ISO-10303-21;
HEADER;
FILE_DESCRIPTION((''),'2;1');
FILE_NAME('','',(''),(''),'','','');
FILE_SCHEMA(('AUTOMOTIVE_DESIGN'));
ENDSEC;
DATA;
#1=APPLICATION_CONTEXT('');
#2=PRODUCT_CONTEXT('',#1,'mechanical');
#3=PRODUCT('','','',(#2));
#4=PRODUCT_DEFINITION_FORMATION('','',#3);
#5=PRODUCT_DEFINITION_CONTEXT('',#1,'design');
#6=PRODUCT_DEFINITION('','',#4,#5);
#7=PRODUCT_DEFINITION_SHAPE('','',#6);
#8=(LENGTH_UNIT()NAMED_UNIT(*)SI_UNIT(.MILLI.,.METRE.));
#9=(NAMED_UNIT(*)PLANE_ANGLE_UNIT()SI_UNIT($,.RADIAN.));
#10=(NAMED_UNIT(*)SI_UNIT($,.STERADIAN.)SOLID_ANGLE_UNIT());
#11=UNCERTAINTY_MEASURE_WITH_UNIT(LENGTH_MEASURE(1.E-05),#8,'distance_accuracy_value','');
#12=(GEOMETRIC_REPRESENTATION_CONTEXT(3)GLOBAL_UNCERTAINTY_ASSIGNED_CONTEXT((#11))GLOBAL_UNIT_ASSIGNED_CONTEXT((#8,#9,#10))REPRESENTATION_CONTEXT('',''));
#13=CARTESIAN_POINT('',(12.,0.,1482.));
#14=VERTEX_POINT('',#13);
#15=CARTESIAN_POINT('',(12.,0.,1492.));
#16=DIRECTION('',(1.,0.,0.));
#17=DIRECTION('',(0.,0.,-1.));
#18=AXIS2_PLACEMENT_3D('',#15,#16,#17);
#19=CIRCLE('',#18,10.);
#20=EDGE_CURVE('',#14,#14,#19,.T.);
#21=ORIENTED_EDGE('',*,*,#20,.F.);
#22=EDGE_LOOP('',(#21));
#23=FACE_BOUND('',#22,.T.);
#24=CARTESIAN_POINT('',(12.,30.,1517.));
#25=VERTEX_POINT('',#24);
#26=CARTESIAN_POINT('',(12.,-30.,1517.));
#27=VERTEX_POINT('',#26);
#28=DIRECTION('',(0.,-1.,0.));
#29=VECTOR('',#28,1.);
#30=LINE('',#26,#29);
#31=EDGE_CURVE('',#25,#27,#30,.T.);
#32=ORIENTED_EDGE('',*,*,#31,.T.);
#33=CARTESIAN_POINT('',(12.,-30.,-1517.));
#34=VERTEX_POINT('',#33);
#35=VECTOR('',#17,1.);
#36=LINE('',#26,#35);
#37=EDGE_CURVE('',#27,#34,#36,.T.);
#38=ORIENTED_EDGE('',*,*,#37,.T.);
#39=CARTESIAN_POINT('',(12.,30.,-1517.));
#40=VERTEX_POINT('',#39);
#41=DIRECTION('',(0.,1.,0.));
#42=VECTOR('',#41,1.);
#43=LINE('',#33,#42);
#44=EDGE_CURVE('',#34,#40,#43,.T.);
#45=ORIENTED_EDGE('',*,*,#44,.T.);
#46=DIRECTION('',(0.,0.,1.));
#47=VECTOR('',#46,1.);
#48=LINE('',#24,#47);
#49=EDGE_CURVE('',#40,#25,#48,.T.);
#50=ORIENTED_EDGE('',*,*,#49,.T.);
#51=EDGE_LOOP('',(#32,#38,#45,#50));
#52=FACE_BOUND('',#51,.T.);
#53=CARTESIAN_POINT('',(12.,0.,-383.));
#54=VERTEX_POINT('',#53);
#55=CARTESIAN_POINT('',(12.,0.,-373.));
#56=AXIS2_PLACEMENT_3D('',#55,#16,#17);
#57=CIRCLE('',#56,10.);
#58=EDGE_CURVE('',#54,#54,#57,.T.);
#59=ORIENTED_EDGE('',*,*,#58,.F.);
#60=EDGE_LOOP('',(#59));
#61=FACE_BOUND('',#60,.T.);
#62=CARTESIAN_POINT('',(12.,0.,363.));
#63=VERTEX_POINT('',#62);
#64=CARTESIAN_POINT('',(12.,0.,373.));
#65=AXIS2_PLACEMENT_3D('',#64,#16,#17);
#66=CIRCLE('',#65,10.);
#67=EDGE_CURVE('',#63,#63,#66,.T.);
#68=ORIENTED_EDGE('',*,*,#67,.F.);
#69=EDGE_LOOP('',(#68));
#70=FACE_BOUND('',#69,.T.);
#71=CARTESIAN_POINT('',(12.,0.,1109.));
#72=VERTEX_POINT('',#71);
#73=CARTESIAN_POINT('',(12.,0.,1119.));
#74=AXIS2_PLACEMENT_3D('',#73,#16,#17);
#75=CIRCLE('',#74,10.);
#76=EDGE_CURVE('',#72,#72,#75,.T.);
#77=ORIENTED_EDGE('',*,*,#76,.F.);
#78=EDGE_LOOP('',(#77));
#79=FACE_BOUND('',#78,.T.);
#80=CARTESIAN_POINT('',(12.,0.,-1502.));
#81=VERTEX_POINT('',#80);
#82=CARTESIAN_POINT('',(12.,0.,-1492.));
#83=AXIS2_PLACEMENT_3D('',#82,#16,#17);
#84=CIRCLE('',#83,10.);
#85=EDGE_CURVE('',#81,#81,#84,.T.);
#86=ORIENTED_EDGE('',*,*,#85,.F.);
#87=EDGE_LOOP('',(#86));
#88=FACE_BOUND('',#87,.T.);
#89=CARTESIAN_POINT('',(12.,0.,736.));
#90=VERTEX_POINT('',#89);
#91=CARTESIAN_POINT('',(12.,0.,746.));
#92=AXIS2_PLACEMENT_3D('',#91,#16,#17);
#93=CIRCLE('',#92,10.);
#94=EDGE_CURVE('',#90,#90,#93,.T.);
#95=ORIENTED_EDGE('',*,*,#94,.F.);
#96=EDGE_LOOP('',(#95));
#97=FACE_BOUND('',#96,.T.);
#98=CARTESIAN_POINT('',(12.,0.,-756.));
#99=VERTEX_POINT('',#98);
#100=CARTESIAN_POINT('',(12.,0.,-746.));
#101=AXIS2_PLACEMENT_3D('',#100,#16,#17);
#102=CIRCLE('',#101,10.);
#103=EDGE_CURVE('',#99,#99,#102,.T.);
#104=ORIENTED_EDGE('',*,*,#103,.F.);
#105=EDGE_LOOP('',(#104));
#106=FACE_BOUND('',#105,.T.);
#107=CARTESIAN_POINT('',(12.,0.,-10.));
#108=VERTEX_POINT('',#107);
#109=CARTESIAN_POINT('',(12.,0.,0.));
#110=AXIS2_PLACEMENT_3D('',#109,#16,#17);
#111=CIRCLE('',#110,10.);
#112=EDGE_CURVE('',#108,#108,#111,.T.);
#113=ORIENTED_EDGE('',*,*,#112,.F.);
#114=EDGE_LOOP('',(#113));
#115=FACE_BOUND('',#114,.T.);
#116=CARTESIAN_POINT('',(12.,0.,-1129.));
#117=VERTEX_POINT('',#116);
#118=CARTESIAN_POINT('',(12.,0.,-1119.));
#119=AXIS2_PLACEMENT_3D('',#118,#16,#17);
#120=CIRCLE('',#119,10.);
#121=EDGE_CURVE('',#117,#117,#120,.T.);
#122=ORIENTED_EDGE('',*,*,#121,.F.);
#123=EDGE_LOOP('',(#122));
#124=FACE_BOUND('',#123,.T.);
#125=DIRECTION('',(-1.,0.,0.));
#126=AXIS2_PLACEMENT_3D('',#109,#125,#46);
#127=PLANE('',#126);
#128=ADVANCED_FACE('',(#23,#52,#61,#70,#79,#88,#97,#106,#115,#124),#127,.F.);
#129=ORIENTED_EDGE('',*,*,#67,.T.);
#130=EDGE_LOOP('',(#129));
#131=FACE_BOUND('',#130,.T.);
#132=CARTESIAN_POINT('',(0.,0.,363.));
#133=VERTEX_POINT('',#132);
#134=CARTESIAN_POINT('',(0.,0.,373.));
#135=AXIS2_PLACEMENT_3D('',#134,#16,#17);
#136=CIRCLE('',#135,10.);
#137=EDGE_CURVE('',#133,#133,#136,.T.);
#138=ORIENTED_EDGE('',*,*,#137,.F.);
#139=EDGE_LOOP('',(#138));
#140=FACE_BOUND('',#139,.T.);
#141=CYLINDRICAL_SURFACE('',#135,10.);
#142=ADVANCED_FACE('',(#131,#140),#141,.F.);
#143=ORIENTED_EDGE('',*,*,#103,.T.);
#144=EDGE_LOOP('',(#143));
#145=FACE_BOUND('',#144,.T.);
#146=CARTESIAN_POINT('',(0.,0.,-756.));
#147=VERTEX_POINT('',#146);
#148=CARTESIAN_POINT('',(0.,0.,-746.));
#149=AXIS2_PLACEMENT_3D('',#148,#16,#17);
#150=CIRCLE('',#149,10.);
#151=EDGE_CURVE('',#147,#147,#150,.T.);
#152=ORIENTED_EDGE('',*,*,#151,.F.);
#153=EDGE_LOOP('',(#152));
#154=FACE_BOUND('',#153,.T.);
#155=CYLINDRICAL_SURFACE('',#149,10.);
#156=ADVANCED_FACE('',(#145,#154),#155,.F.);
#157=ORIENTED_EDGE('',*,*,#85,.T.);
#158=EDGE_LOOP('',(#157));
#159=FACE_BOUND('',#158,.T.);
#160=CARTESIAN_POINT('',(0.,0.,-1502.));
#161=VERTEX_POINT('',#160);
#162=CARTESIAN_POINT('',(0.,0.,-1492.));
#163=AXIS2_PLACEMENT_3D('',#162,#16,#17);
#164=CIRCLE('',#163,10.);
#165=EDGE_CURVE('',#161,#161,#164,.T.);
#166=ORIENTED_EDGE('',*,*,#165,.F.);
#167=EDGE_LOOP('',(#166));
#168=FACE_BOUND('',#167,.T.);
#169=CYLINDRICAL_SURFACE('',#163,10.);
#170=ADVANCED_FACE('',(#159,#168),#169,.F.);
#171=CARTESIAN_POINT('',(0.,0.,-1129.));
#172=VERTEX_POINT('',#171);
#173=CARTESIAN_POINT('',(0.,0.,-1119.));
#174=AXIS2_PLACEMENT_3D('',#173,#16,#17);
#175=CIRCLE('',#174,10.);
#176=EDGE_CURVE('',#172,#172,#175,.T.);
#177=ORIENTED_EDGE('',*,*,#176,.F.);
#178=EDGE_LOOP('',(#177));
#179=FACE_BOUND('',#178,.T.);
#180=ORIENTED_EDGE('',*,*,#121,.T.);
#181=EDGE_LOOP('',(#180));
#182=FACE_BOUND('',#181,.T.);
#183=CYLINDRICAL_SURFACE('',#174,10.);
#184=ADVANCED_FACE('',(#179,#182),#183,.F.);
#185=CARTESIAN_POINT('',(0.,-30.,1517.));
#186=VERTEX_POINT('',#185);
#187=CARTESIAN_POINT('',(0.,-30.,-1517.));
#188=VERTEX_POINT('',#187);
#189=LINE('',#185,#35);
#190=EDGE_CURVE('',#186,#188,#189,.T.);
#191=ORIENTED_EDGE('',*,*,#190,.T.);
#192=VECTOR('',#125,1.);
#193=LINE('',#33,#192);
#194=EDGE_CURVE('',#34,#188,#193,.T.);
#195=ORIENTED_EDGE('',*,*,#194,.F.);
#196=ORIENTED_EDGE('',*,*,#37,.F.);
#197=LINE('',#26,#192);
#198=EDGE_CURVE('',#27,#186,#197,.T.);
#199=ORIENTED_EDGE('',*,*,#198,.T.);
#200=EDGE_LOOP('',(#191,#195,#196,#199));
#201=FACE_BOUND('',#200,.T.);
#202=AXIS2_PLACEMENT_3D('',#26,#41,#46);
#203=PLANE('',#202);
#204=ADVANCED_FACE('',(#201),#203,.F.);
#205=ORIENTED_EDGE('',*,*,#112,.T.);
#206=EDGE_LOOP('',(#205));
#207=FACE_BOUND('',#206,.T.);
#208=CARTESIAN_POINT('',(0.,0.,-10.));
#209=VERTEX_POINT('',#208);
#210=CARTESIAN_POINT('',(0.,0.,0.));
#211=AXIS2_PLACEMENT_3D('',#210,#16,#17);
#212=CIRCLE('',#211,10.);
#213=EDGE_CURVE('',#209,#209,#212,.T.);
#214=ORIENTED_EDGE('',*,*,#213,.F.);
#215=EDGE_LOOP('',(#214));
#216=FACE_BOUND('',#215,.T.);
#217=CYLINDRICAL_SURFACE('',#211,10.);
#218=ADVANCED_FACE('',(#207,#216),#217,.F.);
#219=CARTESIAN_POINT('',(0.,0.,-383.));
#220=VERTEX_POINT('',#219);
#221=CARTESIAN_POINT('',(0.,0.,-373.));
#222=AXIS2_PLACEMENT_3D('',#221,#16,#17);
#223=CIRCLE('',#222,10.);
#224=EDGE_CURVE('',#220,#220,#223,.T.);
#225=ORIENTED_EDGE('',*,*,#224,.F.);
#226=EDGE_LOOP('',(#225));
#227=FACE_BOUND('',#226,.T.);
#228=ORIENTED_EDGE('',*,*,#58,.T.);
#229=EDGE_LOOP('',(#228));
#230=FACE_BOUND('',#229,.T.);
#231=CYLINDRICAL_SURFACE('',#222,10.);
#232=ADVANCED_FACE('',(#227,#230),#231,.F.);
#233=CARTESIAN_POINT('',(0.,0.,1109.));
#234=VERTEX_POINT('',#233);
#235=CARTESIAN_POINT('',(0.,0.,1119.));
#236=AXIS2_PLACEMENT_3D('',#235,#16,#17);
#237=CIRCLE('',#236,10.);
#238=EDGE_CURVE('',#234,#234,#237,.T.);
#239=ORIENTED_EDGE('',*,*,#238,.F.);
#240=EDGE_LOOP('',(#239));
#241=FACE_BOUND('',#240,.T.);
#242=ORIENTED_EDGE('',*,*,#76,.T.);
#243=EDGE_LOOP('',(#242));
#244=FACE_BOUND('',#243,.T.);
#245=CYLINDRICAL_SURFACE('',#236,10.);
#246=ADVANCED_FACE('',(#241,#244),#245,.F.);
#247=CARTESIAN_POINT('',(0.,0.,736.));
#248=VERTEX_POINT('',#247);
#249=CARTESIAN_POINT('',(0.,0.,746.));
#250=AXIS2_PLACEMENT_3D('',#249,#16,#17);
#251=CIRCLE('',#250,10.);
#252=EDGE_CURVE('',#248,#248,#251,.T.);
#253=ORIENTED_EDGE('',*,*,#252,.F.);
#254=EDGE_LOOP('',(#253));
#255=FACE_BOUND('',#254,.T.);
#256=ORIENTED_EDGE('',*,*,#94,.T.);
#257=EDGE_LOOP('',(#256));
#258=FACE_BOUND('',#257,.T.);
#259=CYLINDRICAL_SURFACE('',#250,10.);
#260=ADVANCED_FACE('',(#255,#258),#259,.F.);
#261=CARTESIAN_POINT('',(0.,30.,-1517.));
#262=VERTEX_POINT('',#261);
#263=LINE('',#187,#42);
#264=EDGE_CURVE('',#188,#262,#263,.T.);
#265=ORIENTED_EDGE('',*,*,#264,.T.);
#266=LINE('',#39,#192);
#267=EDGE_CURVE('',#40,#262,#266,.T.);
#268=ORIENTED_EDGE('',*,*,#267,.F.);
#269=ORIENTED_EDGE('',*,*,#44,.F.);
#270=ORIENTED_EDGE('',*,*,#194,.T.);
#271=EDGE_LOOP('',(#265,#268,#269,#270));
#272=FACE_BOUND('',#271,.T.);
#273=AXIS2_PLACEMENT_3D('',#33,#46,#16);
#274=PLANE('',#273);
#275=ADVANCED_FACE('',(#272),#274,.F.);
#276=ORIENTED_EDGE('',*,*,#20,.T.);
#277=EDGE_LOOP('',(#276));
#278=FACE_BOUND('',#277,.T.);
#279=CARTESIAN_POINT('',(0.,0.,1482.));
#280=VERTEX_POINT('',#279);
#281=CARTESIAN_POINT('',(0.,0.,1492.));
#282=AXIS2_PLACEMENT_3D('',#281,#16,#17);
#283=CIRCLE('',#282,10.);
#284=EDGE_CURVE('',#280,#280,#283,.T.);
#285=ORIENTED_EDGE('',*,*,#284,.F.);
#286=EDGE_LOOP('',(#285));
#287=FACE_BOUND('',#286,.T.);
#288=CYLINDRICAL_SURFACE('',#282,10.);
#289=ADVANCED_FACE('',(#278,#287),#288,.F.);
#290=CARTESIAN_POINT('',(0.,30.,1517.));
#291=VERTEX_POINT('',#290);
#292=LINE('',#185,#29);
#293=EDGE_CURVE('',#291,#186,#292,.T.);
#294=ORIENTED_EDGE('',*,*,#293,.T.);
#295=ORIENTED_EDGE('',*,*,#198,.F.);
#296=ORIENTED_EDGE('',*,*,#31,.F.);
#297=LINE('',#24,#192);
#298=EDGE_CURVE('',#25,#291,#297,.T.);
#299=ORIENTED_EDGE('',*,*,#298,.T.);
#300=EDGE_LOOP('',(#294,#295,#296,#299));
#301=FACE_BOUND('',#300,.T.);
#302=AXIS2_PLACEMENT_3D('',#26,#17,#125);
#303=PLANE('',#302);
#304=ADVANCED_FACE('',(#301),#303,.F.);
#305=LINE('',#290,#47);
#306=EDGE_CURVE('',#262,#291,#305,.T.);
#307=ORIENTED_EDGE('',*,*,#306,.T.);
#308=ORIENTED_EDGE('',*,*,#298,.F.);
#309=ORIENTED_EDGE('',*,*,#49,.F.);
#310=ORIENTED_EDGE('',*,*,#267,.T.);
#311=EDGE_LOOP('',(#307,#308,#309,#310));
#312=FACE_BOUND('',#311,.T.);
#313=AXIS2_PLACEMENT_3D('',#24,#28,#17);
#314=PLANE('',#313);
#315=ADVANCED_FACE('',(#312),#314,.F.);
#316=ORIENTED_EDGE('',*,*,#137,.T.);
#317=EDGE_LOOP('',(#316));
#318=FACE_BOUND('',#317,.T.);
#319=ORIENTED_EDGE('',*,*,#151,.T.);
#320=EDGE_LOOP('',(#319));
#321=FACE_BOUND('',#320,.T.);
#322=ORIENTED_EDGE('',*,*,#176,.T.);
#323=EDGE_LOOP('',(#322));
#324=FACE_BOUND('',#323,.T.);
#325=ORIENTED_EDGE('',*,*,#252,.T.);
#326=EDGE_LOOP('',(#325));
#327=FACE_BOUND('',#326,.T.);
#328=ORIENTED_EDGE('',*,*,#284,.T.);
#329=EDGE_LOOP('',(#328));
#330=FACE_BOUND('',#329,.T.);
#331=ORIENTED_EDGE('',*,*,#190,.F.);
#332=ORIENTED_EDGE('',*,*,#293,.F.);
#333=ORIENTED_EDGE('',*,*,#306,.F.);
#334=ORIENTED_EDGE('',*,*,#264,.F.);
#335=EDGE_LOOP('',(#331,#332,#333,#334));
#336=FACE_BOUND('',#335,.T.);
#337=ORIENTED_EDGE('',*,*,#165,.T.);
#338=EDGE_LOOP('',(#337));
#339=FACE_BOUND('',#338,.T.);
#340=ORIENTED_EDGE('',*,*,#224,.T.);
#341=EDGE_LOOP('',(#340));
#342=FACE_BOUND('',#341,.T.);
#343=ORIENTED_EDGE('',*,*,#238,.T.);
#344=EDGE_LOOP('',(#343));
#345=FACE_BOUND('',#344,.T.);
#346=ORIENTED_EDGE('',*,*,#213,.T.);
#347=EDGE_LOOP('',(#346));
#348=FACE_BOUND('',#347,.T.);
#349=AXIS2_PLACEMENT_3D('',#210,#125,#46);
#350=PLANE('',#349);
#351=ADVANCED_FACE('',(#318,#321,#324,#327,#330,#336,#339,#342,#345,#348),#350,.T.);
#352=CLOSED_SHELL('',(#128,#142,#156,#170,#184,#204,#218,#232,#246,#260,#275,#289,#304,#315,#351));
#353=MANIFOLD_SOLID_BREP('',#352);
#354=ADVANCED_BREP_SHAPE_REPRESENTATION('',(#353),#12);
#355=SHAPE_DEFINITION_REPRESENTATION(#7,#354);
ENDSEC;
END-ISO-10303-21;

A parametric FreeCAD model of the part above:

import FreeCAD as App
import Part
import Sketcher
from FreeCAD import Vector
Q = App.Units.Quantity


def add_polygon(sketch, points):
    """Adds a closed chain of lines whose ends are joined by coincident constraints."""
    first, n = sketch.GeometryCount, len(points)
    for a, b in zip(points, points[1:] + points[:1]):
        sketch.addGeometry(Part.LineSegment(App.Vector(*a, 0), App.Vector(*b, 0)), False)
    for i in range(n):
        sketch.addConstraint(Sketcher.Constraint("Coincident", first + i, 2, first + (i + 1) % n, 1))

doc = App.newDocument("Part")
body = doc.addObject("PartDesign::Body", "Body")

# Sketch on YZ plane
sketch1 = body.newObject("Sketcher::SketchObject", "Sketch")
sketch1.AttachmentSupport = (doc.getObject("YZ_Plane"), [""])
sketch1.MapMode = "FlatFace"
add_polygon(sketch1, [(30, 1517), (-30, 1517), (-30, -1517), (30, -1517)])  # lines 0-3
sketch1.addConstraint(Sketcher.Constraint("Horizontal", 0))
sketch1.addConstraint(Sketcher.Constraint("Vertical", 1))
sketch1.addConstraint(Sketcher.Constraint("Horizontal", 2))
sketch1.addConstraint(Sketcher.Constraint("Vertical", 3))
sketch1.addConstraint(Sketcher.Constraint("Symmetric", 0, 2, 2, 2, -1, 1))
sketch1.addConstraint(Sketcher.Constraint("DistanceX", 0, 2, 0, 1, Q("60 mm")))
sketch1.addConstraint(Sketcher.Constraint("DistanceY", 1, 2, 1, 1, Q("3034 mm")))
pad1 = body.newObject("PartDesign::Pad", "Pad")
pad1.Profile = sketch1
pad1.Length = 12

# Sketch on YZ plane
sketch2 = body.newObject("Sketcher::SketchObject", "Sketch001")
sketch2.AttachmentSupport = (doc.getObject("YZ_Plane"), [""])
sketch2.MapMode = "FlatFace"
sketch2.AttachmentOffset = App.Placement(Vector(0, 0, 12), App.Rotation())
sketch2.addGeometry(Part.Circle(Vector(0, 1492, 0), Vector(0, 0, 1), 10), False)
sketch2.addConstraint(Sketcher.Constraint("PointOnObject", 0, 3, -2))
sketch2.addConstraint(Sketcher.Constraint("Diameter", 0, Q("20 mm")))
sketch2.addConstraint(Sketcher.Constraint("DistanceY", -1, 1, 0, 3, Q("1492 mm")))
pocket1 = body.newObject("PartDesign::Pocket", "Pocket")
pocket1.Profile = sketch2
pocket1.Length = 12
doc.recompute()

linearpattern = body.newObject("PartDesign::LinearPattern", "LinearPattern")
linearpattern.Originals = [pocket1]
linearpattern.Direction = (doc.getObject("Z_Axis"), [""])
linearpattern.Mode = "offset"
linearpattern.Offset = 373
linearpattern.Occurrences = 9
linearpattern.Reversed = True
body.Tip = linearpattern

doc.recompute()
